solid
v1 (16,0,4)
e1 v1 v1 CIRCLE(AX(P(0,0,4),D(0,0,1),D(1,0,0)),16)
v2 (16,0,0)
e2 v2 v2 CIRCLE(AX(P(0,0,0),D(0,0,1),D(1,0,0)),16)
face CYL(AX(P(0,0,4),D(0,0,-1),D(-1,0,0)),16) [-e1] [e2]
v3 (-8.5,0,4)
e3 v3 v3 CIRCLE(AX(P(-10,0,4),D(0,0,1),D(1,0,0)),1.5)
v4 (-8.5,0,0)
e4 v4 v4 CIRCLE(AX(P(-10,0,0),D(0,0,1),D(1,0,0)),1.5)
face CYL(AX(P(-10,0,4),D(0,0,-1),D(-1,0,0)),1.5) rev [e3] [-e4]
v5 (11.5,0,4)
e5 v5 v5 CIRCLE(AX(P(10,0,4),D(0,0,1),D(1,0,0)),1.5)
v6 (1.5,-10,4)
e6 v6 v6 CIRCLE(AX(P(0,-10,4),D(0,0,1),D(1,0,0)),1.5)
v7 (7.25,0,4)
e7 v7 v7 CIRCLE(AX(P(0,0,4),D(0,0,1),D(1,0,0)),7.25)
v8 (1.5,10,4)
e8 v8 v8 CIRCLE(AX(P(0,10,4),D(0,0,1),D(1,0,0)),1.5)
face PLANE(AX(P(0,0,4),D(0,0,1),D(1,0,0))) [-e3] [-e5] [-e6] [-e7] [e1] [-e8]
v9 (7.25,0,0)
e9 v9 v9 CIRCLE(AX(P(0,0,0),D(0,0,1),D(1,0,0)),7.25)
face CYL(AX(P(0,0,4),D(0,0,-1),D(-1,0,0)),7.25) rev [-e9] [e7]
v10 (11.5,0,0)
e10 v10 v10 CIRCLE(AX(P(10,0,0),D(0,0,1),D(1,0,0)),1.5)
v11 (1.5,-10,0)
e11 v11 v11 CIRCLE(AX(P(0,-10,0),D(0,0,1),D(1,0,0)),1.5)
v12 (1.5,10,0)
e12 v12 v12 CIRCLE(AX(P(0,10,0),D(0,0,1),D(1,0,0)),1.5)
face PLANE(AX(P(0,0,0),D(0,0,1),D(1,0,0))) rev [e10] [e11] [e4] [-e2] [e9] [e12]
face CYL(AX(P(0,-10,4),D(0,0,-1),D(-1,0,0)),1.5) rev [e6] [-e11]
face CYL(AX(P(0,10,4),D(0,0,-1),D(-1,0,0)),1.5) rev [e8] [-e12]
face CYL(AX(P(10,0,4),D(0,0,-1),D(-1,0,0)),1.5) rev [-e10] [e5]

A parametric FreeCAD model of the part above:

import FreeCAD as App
import Part
import Sketcher
Q = App.Units.Quantity

doc = App.newDocument("Part")
body = doc.addObject("PartDesign::Body", "Body")

sketch1 = body.newObject("Sketcher::SketchObject", "Sketch")
sketch1.AttachmentSupport = (doc.getObject("XY_Plane"), [""])
sketch1.MapMode = "FlatFace"
sketch1.addGeometry([
    Part.Circle(App.Vector(0, 0, 0), App.Vector(0, 0, 1), 16),
    Part.Circle(App.Vector(0, -10, 0), App.Vector(0, 0, 1), 1.5),
    Part.Circle(App.Vector(-10, 0, 0), App.Vector(0, 0, 1), 1.5),
    Part.Circle(App.Vector(0, 0, 0), App.Vector(0, 0, 1), 7.2),
    Part.Circle(App.Vector(10, 0, 0), App.Vector(0, 0, 1), 1.5),
    Part.Circle(App.Vector(0, 10, 0), App.Vector(0, 0, 1), 1.5),
], False)
sketch1.addConstraint([
    Sketcher.Constraint("Coincident", 0, 3, -1, 1),
    Sketcher.Constraint("Coincident", 3, 3, -1, 1),
    Sketcher.Constraint("Equal", 1, 2),
    Sketcher.Constraint("Equal", 2, 4),
    Sketcher.Constraint("Equal", 4, 5),
    Sketcher.Constraint("Symmetric", 2, 3, 4, 3, -1, 1),
    Sketcher.Constraint("Symmetric", 1, 3, 5, 3, -1, 1),
    Sketcher.Constraint("PointOnObject", 1, 3, -2),
    Sketcher.Constraint("PointOnObject", 2, 3, -1),
    Sketcher.Constraint("Diameter", 0, Q("32 mm")),
    Sketcher.Constraint("Diameter", 1, Q("3 mm")),
    Sketcher.Constraint("Diameter", 3, Q("14.5 mm")),
    Sketcher.Constraint("DistanceY", 1, 3, -1, 1, Q("10 mm")),
    Sketcher.Constraint("DistanceX", 2, 3, -1, 1, Q("10 mm")),
])
pad1 = body.newObject("PartDesign::Pad", "Pad")
pad1.Profile = sketch1
pad1.Length = 4

doc.recompute()
